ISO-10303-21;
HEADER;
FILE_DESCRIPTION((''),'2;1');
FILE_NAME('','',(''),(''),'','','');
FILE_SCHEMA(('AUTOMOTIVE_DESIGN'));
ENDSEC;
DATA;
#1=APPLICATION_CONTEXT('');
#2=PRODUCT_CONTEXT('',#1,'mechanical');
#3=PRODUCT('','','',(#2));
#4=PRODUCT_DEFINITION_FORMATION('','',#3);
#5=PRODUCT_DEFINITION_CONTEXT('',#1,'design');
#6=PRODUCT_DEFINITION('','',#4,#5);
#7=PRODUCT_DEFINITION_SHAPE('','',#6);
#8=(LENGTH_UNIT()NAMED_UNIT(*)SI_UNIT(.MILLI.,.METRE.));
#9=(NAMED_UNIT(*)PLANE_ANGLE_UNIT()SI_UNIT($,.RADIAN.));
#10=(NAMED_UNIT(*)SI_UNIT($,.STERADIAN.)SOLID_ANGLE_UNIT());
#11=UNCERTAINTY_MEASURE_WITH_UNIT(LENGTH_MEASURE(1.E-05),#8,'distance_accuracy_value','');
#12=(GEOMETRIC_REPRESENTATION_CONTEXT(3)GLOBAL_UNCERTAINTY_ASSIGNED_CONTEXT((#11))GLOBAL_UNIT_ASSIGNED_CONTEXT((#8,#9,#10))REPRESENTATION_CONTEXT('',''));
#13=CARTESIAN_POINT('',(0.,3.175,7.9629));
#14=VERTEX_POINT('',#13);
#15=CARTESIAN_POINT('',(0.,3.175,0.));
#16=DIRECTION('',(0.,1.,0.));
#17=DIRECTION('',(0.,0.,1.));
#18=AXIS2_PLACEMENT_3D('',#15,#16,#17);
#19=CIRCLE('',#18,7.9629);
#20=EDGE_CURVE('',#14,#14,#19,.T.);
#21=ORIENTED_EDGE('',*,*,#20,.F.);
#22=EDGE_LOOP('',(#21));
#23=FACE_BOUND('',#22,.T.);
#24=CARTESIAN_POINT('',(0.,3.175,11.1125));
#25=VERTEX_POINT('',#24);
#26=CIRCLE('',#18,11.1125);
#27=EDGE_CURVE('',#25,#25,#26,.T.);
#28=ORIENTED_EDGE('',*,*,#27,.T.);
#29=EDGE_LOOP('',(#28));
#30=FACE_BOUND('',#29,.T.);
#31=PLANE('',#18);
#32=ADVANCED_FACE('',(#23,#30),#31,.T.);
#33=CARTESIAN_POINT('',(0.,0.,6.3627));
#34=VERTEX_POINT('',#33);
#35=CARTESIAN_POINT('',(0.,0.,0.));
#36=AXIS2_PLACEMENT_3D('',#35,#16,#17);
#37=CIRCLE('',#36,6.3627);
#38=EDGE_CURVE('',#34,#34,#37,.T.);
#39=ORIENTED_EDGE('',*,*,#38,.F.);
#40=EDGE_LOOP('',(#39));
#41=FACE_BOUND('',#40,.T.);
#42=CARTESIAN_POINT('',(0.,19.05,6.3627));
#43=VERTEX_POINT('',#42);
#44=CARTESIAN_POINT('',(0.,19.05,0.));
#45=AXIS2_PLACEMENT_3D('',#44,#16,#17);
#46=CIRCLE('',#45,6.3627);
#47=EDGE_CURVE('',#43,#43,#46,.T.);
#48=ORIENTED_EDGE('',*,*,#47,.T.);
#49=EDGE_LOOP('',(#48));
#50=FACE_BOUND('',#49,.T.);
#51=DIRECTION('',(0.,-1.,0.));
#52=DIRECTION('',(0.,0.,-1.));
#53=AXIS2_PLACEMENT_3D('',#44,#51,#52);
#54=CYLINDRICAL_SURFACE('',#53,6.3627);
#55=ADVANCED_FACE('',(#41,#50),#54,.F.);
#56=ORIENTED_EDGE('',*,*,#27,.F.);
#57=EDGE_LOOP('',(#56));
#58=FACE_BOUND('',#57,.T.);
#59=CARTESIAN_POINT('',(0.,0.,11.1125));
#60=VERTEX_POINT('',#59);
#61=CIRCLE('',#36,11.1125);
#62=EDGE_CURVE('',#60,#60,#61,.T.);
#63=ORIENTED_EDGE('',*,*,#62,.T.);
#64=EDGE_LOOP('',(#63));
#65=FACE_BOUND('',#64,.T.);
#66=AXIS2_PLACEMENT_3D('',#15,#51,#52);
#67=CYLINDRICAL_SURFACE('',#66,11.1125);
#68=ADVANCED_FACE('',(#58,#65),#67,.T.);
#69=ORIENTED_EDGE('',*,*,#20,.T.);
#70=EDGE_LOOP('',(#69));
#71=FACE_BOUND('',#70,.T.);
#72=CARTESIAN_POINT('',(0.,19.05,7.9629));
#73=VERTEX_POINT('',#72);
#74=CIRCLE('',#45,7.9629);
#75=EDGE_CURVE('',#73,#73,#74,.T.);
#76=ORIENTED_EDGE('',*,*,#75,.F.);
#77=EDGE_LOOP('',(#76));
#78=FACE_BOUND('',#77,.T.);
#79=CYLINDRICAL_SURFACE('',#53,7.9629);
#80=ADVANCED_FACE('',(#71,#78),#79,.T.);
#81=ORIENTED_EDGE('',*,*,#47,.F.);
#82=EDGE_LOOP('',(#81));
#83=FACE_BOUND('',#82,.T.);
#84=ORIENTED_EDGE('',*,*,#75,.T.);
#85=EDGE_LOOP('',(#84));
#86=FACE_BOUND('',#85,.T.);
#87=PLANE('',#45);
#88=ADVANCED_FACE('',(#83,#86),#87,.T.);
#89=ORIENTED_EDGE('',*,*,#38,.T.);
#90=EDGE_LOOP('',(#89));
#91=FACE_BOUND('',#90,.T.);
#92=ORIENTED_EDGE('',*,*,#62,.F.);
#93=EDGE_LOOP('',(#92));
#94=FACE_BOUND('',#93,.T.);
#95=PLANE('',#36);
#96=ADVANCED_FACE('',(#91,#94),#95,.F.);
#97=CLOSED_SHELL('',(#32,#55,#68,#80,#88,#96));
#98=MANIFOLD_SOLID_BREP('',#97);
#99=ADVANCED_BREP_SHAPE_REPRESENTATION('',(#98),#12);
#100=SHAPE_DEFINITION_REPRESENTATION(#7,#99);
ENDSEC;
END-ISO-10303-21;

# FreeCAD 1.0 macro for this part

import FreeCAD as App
import Part
import Sketcher
Q = App.Units.Quantity

doc = App.newDocument("Part")
body = doc.addObject("PartDesign::Body", "Body")

# Sketch on XZ plane
sketch1 = body.newObject("Sketcher::SketchObject", "Sketch")
sketch1.AttachmentSupport = (doc.getObject("XZ_Plane"), [""])
sketch1.MapMode = "FlatFace"
sketch1.addGeometry([
    Part.Circle(App.Vector(0, 0, 0), App.Vector(0, 0, 1), 8),
    Part.Circle(App.Vector(0, 0, 0), App.Vector(0, 0, 1), 6),
], False)
sketch1.addConstraint([
    Sketcher.Constraint("Coincident", 0, 3, -1, 1),
    Sketcher.Constraint("Coincident", 1, 3, -1, 1),
    Sketcher.Constraint("Diameter", 0, Q("0.627 in")),
    Sketcher.Constraint("Diameter", 1, Q("0.501 in")),
])
pad1 = body.newObject("PartDesign::Pad", "Pad")
pad1.Profile = sketch1
pad1.Length = Q("0.75 in")
pad1.Reversed = True

# Sketch on XZ plane
sketch2 = body.newObject("Sketcher::SketchObject", "Sketch001")
sketch2.AttachmentSupport = (doc.getObject("XZ_Plane"), [""])
sketch2.MapMode = "FlatFace"
sketch2.addGeometry([
    Part.Circle(App.Vector(0, 0, 0), App.Vector(0, 0, 1), 11),
    Part.Circle(App.Vector(0, 0, 0), App.Vector(0, 0, 1), 8),
], False)
sketch2.addConstraint([
    Sketcher.Constraint("Coincident", 0, 3, -1, 1),
    Sketcher.Constraint("Coincident", 1, 3, -1, 1),
    Sketcher.Constraint("Diameter", 0, Q("0.875 in")),
    Sketcher.Constraint("Diameter", 1, Q("0.627 in")),
])
pad2 = body.newObject("PartDesign::Pad", "Pad001")
pad2.Profile = sketch2
pad2.Length = Q("0.125 in")
pad2.Reversed = True

doc.recompute()
